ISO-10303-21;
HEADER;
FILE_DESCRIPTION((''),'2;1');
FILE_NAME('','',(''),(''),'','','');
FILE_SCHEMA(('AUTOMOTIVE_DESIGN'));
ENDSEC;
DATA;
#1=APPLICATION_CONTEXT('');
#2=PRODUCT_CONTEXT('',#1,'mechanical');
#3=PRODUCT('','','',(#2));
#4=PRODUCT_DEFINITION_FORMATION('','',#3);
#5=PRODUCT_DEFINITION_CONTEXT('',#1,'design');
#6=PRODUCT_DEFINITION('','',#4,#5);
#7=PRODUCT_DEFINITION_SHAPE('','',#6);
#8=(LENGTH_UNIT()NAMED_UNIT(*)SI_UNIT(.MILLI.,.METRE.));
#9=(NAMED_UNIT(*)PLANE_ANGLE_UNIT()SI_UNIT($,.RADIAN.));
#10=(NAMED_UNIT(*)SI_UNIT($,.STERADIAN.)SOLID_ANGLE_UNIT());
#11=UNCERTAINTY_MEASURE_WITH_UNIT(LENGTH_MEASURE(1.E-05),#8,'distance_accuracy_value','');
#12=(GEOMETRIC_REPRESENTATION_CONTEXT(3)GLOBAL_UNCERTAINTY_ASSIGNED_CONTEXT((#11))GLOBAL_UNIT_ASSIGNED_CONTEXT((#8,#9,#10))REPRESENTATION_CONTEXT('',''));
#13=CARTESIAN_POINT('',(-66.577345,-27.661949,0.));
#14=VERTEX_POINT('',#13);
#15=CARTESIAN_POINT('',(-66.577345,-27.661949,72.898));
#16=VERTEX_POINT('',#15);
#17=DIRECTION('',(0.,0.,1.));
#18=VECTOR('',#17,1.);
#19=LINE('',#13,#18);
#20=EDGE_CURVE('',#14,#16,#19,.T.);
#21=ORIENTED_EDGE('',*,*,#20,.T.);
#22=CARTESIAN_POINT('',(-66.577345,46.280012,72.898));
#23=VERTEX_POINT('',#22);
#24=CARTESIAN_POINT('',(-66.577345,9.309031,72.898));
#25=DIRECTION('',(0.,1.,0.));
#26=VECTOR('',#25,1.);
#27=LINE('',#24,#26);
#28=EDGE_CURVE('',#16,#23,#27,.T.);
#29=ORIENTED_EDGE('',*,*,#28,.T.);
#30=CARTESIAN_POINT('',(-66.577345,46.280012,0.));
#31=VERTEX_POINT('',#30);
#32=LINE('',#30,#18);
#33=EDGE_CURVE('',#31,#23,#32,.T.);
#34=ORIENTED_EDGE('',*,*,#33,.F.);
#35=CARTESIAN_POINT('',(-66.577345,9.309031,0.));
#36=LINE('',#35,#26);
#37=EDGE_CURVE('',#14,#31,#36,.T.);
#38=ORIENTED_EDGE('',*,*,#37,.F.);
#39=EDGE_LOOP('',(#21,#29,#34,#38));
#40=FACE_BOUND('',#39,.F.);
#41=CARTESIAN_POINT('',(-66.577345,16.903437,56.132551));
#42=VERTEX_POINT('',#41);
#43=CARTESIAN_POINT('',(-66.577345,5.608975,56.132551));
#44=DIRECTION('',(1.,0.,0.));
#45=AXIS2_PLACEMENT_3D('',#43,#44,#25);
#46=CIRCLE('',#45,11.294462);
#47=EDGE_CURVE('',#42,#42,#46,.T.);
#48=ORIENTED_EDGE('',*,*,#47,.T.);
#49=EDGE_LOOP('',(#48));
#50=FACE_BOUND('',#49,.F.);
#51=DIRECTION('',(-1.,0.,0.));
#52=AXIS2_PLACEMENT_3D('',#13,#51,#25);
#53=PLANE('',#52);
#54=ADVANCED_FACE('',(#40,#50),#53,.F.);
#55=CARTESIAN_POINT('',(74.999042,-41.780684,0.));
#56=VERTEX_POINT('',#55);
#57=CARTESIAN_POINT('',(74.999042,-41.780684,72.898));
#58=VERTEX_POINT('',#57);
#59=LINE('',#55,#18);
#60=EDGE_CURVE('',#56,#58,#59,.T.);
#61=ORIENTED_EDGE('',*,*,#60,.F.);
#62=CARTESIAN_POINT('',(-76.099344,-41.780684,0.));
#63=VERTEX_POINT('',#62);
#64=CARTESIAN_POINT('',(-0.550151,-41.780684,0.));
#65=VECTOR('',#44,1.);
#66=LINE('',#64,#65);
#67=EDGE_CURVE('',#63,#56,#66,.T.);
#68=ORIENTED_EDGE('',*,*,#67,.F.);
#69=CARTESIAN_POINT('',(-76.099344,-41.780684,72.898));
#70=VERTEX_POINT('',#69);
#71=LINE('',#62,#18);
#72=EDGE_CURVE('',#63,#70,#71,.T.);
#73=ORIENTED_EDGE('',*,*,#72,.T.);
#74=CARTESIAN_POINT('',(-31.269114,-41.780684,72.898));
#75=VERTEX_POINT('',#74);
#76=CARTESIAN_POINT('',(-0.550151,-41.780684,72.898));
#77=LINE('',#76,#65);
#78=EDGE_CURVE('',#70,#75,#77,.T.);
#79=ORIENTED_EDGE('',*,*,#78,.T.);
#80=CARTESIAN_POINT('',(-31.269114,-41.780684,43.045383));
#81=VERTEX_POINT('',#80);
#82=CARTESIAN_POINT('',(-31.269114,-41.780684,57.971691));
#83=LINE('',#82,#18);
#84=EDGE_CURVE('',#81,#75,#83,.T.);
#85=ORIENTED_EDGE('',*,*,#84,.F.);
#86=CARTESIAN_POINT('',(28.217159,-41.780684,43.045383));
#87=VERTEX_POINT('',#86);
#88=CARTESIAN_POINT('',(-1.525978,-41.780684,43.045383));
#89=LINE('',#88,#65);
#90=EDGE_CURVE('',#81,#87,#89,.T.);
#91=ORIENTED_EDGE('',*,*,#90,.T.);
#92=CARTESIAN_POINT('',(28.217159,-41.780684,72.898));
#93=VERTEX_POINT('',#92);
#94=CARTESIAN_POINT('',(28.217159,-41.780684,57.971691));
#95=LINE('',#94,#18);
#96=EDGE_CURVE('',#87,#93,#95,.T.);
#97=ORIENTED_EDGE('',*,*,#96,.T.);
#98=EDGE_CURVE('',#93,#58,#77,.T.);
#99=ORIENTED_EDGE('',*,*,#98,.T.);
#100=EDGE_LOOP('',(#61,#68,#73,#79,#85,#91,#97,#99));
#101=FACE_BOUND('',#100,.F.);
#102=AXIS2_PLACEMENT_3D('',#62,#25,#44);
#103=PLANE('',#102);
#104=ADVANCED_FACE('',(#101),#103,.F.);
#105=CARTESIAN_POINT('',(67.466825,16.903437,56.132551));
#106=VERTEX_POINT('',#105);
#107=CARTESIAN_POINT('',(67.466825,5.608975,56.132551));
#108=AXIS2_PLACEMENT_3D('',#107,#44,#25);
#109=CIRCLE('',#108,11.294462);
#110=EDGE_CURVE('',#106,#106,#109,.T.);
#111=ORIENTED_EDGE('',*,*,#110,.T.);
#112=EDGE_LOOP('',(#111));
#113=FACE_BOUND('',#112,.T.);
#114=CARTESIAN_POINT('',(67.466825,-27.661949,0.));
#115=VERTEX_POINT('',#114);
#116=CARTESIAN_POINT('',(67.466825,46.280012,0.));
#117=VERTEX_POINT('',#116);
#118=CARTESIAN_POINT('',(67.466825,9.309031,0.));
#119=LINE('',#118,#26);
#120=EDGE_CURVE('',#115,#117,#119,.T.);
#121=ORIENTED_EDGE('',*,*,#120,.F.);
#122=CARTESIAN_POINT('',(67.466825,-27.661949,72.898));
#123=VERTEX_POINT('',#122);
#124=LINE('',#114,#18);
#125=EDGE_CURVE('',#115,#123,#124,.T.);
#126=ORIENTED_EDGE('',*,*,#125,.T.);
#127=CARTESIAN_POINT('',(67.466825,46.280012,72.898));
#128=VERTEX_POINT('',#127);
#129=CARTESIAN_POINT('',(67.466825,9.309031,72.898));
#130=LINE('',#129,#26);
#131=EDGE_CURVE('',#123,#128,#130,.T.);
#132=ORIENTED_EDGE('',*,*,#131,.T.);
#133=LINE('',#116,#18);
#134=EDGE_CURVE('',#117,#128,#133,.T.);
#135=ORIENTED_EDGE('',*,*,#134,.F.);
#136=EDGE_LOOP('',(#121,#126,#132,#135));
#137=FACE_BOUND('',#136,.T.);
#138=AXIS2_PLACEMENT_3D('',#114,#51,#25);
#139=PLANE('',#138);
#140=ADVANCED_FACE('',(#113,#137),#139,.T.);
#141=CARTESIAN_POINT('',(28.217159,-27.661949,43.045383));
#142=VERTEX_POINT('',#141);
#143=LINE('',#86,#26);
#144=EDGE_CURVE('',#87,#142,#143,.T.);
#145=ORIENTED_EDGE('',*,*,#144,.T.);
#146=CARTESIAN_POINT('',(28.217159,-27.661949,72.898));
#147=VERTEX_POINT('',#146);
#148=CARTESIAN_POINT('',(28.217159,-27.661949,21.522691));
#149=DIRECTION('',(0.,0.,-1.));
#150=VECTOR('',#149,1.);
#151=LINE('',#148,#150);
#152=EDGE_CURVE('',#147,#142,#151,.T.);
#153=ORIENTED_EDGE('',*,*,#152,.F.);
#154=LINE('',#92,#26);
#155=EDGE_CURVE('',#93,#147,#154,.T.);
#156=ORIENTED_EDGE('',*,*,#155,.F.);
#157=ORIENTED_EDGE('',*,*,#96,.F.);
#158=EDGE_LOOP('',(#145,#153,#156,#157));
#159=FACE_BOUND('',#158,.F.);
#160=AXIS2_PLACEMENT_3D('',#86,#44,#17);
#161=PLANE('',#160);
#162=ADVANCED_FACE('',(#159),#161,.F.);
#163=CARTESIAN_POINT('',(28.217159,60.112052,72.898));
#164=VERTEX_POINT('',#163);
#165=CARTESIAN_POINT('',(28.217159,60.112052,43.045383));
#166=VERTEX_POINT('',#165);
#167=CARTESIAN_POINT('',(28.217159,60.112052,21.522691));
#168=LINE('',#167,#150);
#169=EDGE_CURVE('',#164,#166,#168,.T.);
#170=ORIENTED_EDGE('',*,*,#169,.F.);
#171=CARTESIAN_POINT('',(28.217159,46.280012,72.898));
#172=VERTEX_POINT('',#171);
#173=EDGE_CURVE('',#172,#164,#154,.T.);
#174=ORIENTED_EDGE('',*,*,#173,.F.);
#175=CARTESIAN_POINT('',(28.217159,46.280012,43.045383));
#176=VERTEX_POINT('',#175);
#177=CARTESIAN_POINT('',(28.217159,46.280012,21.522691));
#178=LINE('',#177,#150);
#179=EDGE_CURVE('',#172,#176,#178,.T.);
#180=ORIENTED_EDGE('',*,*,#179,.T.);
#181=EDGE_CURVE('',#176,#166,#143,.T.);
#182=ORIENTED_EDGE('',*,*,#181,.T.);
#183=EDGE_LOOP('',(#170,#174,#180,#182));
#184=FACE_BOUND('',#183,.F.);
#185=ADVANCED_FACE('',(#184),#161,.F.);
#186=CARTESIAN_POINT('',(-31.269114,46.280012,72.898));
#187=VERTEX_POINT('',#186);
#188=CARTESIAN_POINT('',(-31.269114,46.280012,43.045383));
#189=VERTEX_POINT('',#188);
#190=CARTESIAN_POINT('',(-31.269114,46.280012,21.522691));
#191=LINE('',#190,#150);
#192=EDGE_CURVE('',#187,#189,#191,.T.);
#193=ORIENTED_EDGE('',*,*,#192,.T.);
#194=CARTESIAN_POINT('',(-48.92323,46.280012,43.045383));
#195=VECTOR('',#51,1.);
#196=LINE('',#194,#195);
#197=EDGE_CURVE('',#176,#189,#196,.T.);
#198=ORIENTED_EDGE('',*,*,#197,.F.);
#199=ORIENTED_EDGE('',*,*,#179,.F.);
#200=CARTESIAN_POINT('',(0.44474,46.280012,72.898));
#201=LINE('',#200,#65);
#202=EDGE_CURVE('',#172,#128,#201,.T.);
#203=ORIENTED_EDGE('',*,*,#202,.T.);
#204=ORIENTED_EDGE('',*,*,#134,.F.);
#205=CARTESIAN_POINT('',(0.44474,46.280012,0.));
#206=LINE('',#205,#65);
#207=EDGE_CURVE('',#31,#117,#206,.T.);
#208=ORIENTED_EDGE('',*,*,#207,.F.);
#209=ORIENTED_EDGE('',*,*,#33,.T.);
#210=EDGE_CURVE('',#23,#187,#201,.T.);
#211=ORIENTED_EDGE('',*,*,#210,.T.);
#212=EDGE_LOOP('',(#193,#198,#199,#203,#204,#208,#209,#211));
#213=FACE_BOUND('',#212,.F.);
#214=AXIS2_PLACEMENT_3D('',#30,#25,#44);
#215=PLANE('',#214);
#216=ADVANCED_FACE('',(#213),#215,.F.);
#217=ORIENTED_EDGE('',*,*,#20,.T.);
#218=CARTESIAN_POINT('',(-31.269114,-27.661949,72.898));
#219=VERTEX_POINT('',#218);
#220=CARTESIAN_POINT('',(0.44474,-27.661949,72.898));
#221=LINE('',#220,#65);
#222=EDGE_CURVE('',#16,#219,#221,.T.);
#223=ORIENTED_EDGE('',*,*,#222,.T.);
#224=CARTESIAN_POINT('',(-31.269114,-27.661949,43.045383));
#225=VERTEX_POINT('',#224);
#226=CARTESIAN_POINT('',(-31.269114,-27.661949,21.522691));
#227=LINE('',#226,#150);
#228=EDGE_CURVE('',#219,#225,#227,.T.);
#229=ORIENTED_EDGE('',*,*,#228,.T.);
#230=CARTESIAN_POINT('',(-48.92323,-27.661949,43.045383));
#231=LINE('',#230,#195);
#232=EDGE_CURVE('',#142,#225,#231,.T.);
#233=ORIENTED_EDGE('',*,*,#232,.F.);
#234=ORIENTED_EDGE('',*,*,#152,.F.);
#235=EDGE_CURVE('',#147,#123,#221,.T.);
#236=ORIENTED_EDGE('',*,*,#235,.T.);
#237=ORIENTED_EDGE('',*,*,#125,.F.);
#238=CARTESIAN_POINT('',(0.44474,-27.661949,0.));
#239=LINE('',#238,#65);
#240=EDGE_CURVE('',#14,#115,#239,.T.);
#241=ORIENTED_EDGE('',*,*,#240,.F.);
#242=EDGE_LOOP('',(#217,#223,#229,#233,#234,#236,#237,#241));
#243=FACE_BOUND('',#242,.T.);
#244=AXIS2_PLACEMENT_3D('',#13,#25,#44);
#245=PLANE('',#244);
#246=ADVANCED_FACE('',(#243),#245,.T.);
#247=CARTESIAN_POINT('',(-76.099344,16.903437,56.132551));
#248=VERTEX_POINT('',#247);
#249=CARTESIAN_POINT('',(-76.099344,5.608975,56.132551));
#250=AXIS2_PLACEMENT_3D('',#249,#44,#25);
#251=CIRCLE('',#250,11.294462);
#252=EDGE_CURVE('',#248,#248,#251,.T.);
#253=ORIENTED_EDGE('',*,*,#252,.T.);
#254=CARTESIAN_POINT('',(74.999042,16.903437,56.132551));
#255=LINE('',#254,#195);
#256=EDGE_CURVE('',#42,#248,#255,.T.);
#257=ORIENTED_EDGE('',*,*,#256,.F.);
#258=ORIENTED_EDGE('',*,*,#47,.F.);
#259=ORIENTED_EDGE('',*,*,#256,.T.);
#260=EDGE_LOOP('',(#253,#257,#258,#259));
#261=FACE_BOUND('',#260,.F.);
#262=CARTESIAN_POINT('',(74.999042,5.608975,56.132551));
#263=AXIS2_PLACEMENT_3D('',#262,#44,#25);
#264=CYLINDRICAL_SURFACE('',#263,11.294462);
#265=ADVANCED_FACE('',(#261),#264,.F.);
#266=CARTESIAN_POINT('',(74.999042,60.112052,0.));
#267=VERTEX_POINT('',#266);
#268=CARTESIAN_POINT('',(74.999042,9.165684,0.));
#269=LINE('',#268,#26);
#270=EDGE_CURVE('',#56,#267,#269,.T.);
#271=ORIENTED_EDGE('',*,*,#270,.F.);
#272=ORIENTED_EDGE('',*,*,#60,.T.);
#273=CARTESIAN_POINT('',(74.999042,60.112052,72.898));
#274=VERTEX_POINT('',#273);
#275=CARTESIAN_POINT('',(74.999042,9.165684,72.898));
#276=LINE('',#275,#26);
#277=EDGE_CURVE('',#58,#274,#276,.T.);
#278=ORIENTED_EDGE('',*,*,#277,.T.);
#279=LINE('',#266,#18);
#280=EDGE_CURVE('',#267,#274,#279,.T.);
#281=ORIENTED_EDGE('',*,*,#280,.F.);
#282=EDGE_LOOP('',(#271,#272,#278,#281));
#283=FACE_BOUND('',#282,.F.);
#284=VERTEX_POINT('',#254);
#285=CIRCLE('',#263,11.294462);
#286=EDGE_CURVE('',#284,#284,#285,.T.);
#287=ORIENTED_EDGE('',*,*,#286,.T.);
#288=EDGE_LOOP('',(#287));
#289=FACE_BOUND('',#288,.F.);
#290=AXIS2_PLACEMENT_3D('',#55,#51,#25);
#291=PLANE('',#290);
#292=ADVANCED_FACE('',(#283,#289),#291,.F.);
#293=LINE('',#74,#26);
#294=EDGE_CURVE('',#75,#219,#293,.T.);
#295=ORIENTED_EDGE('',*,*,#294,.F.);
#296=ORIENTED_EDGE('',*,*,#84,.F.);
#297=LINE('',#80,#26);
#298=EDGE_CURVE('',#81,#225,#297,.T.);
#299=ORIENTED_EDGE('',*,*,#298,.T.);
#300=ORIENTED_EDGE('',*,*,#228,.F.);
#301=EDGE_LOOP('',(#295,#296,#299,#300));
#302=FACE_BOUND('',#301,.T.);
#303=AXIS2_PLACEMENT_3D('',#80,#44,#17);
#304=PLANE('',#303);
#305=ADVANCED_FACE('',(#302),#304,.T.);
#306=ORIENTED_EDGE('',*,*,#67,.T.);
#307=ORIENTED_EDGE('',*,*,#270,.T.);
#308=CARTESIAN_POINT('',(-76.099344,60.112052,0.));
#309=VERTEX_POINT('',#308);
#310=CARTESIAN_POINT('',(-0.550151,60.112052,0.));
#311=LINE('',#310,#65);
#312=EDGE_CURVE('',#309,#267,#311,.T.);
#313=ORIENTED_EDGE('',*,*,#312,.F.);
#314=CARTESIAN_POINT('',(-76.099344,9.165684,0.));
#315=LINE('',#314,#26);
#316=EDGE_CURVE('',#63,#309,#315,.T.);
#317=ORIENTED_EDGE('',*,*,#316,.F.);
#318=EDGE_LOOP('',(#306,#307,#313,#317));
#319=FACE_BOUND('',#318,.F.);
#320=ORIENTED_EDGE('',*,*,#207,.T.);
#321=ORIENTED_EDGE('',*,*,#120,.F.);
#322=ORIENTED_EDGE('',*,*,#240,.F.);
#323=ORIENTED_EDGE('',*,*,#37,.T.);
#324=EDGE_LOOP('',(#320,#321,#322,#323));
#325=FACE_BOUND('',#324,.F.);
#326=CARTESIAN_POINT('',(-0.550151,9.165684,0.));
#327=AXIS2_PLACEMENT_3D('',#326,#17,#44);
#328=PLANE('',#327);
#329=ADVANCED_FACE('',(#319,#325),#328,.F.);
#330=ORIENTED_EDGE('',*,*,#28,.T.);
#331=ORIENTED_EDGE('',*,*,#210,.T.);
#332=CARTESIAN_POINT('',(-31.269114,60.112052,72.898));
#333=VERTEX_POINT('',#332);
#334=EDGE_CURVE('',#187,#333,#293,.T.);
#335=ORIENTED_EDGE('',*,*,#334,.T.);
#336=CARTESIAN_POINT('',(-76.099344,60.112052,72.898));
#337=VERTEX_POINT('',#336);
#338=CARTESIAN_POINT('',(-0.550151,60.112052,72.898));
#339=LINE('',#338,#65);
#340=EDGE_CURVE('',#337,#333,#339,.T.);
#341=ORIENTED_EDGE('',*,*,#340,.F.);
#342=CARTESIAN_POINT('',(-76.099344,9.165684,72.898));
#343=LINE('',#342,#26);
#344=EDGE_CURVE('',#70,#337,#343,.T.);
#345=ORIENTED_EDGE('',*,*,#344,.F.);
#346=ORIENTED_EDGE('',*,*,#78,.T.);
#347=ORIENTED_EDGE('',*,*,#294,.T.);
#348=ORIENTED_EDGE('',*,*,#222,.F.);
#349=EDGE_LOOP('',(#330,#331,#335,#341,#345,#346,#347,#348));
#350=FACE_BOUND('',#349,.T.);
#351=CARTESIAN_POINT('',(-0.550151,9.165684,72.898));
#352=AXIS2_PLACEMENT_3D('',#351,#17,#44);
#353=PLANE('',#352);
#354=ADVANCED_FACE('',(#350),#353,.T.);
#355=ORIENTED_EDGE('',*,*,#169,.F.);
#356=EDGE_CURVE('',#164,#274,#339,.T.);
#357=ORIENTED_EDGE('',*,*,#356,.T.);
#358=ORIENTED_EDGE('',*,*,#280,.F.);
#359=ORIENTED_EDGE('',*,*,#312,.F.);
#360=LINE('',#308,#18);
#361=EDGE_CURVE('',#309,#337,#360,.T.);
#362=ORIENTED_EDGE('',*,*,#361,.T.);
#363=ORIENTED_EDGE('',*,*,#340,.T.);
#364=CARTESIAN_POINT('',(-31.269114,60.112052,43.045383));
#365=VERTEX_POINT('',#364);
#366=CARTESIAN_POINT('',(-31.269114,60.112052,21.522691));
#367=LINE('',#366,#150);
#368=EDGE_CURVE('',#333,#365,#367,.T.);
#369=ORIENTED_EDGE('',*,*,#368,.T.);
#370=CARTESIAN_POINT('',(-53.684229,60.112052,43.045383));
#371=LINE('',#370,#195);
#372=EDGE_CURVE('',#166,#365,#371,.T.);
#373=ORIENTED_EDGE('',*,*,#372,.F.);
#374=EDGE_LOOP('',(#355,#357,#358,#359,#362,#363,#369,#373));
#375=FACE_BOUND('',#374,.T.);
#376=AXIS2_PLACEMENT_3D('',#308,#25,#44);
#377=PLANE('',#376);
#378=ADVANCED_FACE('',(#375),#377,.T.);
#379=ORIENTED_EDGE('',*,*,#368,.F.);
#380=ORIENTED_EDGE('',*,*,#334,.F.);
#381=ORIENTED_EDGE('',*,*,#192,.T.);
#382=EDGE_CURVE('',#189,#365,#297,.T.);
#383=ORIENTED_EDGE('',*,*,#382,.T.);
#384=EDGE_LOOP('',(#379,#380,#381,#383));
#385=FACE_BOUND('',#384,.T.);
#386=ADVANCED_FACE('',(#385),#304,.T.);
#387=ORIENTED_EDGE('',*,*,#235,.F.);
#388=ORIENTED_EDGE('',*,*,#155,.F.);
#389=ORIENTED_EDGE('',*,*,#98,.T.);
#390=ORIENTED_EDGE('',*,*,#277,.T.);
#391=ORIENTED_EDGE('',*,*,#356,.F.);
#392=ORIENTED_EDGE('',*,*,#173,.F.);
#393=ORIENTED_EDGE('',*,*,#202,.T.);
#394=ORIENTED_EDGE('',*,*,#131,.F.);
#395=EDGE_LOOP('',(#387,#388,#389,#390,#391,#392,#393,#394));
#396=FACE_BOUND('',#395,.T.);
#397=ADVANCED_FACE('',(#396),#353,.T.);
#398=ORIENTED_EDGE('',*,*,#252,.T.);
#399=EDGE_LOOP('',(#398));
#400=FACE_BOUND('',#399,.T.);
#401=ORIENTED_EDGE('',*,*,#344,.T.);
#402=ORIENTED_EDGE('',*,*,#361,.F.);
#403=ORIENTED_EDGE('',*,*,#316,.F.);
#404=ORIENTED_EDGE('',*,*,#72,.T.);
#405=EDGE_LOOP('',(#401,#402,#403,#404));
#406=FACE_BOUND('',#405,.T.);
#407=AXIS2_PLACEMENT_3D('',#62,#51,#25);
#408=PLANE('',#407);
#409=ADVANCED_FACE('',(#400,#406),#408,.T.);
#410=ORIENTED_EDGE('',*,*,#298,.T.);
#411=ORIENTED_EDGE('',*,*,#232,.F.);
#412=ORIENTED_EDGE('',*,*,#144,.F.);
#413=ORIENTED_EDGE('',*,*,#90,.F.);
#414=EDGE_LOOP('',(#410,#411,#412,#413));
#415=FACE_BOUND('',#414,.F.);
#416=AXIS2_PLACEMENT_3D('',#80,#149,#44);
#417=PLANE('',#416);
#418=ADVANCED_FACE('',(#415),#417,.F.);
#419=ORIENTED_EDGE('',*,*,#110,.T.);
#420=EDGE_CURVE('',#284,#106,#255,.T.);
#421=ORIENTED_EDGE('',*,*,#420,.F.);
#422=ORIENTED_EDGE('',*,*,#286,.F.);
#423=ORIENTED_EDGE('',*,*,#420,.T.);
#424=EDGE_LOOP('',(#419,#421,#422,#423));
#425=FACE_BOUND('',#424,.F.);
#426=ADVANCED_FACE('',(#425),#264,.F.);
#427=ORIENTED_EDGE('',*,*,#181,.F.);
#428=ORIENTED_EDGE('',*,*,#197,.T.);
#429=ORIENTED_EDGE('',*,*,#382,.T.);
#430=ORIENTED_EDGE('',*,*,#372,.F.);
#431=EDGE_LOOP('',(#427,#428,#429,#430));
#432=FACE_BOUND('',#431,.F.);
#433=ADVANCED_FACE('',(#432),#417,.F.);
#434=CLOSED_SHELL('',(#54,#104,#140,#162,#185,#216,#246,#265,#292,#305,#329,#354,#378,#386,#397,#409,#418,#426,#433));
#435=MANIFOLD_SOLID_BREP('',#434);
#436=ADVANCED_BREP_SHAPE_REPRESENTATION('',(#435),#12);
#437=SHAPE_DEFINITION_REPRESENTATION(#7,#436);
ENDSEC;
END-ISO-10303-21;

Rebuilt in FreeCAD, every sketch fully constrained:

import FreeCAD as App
import Part
import Sketcher

V = App.Vector
Q = App.Units.Quantity

doc = App.newDocument("Part")
body = doc.addObject("PartDesign::Body", "Body")

sketch1 = body.newObject("Sketcher::SketchObject", "Sketch")
sketch1.AttachmentSupport = (doc.getObject("XY_Plane"), [""])
sketch1.MapMode = "FlatFace"
sketch1.addGeometry([
    Part.LineSegment(V(-76.099344, 60.112052, 0), V(-76.099344, -41.780684, 0)),
    Part.LineSegment(V(-76.099344, -41.780684, 0), V(74.999042, -41.780684, 0)),
    Part.LineSegment(V(74.999042, -41.780684, 0), V(74.999042, 60.112052, 0)),
    Part.LineSegment(V(74.999042, 60.112052, 0), V(-76.099344, 60.112052, 0)),
    Part.LineSegment(V(67.466825, -27.661949, 0), V(-66.577345, -27.661949, 0)),
    Part.LineSegment(V(-66.577345, -27.661949, 0), V(-66.577345, 46.280012, 0)),
    Part.LineSegment(V(-66.577345, 46.280012, 0), V(67.466825, 46.280012, 0)),
    Part.LineSegment(V(67.466825, 46.280012, 0), V(67.466825, -27.661949, 0)),
], False)
sketch1.addConstraint([
    Sketcher.Constraint("Coincident", 0, 2, 1, 1),
    Sketcher.Constraint("Coincident", 1, 2, 2, 1),
    Sketcher.Constraint("Coincident", 2, 2, 3, 1),
    Sketcher.Constraint("Coincident", 3, 2, 0, 1),
    Sketcher.Constraint("Coincident", 4, 2, 5, 1),
    Sketcher.Constraint("Coincident", 5, 2, 6, 1),
    Sketcher.Constraint("Coincident", 6, 2, 7, 1),
    Sketcher.Constraint("Coincident", 7, 2, 4, 1),
    Sketcher.Constraint("Vertical", 0),
    Sketcher.Constraint("Horizontal", 1),
    Sketcher.Constraint("Vertical", 2),
    Sketcher.Constraint("Horizontal", 3),
    Sketcher.Constraint("Horizontal", 4),
    Sketcher.Constraint("Vertical", 5),
    Sketcher.Constraint("Horizontal", 6),
    Sketcher.Constraint("Vertical", 7),
    Sketcher.Constraint("DistanceX", 4, 2, 4, 1, 134.04417),
    Sketcher.Constraint("DistanceY", 5, 1, 5, 2, 73.941961),
    Sketcher.Constraint("DistanceX", 0, 2, 4, 2, 9.521998),
    Sketcher.Constraint("DistanceY", 4, 2, 3, 2, 87.774001),
    Sketcher.Constraint("DistanceX", 1, 1, 1, 2, 151.098385),
    Sketcher.Constraint("DistanceY", 0, 2, 0, 1, 101.892736),
    Sketcher.Constraint("DistanceX", -1, 1, 1, 2, 74.999042),
    Sketcher.Constraint("DistanceY", -1, 1, 2, 2, 60.112052),
])
pad1 = body.newObject("PartDesign::Pad", "Pad")
pad1.Profile = sketch1
pad1.Length = Q("2.87 in")

sketch2 = body.newObject("Sketcher::SketchObject", "Sketch001")
sketch2.AttachmentSupport = (doc.getObject("XZ_Plane"), [""])
sketch2.MapMode = "FlatFace"
sketch2.AttachmentOffset = App.Placement(V(0, 0, 41.780684), App.Rotation())
sketch2.addGeometry([
    Part.LineSegment(V(-31.269114, 72.898, 0), V(-31.269114, 43.045383, 0)),
    Part.LineSegment(V(-31.269114, 43.045383, 0), V(28.217159, 43.045383, 0)),
    Part.LineSegment(V(28.217159, 43.045383, 0), V(28.217159, 72.898, 0)),
    Part.LineSegment(V(28.217159, 72.898, 0), V(-31.269114, 72.898, 0)),
], False)
sketch2.addConstraint([
    Sketcher.Constraint("Coincident", 0, 2, 1, 1),
    Sketcher.Constraint("Coincident", 1, 2, 2, 1),
    Sketcher.Constraint("Coincident", 2, 2, 3, 1),
    Sketcher.Constraint("Coincident", 3, 2, 0, 1),
    Sketcher.Constraint("Vertical", 0),
    Sketcher.Constraint("Horizontal", 1),
    Sketcher.Constraint("Vertical", 2),
    Sketcher.Constraint("Horizontal", 3),
    Sketcher.Constraint("DistanceY", -1, 1, 2, 2, Q("2.87 in")),
    Sketcher.Constraint("DistanceY", 0, 2, 0, 1, Q("1.1752999 in")),
    Sketcher.Constraint("DistanceX", 1, 1, 1, 2, 59.486274),
    Sketcher.Constraint("DistanceX", -1, 1, 1, 2, 28.217159),
])
pocket1 = body.newObject("PartDesign::Pocket", "Pocket")
pocket1.Profile = sketch2
pocket1.Length = Q("6.35 in")

sketch3 = body.newObject("Sketcher::SketchObject", "Sketch002")
sketch3.AttachmentSupport = (doc.getObject("YZ_Plane"), [""])
sketch3.MapMode = "FlatFace"
sketch3.AttachmentOffset = App.Placement(V(0, 0, 74.999042), App.Rotation())
sketch3.addGeometry(Part.Circle(V(5.608975, 56.132551, 0), V(0, 0, 1), 11.294462), False)
sketch3.addConstraint([
    Sketcher.Constraint("Diameter", 0, 22.588925),
    Sketcher.Constraint("DistanceY", -1, 1, 0, 3, 56.132551),
    Sketcher.Constraint("DistanceX", -1, 1, 0, 3, 5.608975),
])
pocket2 = body.newObject("PartDesign::Pocket", "Pocket001")
pocket2.Profile = sketch3
pocket2.Length = Q("8.97 in")

doc.recompute()
